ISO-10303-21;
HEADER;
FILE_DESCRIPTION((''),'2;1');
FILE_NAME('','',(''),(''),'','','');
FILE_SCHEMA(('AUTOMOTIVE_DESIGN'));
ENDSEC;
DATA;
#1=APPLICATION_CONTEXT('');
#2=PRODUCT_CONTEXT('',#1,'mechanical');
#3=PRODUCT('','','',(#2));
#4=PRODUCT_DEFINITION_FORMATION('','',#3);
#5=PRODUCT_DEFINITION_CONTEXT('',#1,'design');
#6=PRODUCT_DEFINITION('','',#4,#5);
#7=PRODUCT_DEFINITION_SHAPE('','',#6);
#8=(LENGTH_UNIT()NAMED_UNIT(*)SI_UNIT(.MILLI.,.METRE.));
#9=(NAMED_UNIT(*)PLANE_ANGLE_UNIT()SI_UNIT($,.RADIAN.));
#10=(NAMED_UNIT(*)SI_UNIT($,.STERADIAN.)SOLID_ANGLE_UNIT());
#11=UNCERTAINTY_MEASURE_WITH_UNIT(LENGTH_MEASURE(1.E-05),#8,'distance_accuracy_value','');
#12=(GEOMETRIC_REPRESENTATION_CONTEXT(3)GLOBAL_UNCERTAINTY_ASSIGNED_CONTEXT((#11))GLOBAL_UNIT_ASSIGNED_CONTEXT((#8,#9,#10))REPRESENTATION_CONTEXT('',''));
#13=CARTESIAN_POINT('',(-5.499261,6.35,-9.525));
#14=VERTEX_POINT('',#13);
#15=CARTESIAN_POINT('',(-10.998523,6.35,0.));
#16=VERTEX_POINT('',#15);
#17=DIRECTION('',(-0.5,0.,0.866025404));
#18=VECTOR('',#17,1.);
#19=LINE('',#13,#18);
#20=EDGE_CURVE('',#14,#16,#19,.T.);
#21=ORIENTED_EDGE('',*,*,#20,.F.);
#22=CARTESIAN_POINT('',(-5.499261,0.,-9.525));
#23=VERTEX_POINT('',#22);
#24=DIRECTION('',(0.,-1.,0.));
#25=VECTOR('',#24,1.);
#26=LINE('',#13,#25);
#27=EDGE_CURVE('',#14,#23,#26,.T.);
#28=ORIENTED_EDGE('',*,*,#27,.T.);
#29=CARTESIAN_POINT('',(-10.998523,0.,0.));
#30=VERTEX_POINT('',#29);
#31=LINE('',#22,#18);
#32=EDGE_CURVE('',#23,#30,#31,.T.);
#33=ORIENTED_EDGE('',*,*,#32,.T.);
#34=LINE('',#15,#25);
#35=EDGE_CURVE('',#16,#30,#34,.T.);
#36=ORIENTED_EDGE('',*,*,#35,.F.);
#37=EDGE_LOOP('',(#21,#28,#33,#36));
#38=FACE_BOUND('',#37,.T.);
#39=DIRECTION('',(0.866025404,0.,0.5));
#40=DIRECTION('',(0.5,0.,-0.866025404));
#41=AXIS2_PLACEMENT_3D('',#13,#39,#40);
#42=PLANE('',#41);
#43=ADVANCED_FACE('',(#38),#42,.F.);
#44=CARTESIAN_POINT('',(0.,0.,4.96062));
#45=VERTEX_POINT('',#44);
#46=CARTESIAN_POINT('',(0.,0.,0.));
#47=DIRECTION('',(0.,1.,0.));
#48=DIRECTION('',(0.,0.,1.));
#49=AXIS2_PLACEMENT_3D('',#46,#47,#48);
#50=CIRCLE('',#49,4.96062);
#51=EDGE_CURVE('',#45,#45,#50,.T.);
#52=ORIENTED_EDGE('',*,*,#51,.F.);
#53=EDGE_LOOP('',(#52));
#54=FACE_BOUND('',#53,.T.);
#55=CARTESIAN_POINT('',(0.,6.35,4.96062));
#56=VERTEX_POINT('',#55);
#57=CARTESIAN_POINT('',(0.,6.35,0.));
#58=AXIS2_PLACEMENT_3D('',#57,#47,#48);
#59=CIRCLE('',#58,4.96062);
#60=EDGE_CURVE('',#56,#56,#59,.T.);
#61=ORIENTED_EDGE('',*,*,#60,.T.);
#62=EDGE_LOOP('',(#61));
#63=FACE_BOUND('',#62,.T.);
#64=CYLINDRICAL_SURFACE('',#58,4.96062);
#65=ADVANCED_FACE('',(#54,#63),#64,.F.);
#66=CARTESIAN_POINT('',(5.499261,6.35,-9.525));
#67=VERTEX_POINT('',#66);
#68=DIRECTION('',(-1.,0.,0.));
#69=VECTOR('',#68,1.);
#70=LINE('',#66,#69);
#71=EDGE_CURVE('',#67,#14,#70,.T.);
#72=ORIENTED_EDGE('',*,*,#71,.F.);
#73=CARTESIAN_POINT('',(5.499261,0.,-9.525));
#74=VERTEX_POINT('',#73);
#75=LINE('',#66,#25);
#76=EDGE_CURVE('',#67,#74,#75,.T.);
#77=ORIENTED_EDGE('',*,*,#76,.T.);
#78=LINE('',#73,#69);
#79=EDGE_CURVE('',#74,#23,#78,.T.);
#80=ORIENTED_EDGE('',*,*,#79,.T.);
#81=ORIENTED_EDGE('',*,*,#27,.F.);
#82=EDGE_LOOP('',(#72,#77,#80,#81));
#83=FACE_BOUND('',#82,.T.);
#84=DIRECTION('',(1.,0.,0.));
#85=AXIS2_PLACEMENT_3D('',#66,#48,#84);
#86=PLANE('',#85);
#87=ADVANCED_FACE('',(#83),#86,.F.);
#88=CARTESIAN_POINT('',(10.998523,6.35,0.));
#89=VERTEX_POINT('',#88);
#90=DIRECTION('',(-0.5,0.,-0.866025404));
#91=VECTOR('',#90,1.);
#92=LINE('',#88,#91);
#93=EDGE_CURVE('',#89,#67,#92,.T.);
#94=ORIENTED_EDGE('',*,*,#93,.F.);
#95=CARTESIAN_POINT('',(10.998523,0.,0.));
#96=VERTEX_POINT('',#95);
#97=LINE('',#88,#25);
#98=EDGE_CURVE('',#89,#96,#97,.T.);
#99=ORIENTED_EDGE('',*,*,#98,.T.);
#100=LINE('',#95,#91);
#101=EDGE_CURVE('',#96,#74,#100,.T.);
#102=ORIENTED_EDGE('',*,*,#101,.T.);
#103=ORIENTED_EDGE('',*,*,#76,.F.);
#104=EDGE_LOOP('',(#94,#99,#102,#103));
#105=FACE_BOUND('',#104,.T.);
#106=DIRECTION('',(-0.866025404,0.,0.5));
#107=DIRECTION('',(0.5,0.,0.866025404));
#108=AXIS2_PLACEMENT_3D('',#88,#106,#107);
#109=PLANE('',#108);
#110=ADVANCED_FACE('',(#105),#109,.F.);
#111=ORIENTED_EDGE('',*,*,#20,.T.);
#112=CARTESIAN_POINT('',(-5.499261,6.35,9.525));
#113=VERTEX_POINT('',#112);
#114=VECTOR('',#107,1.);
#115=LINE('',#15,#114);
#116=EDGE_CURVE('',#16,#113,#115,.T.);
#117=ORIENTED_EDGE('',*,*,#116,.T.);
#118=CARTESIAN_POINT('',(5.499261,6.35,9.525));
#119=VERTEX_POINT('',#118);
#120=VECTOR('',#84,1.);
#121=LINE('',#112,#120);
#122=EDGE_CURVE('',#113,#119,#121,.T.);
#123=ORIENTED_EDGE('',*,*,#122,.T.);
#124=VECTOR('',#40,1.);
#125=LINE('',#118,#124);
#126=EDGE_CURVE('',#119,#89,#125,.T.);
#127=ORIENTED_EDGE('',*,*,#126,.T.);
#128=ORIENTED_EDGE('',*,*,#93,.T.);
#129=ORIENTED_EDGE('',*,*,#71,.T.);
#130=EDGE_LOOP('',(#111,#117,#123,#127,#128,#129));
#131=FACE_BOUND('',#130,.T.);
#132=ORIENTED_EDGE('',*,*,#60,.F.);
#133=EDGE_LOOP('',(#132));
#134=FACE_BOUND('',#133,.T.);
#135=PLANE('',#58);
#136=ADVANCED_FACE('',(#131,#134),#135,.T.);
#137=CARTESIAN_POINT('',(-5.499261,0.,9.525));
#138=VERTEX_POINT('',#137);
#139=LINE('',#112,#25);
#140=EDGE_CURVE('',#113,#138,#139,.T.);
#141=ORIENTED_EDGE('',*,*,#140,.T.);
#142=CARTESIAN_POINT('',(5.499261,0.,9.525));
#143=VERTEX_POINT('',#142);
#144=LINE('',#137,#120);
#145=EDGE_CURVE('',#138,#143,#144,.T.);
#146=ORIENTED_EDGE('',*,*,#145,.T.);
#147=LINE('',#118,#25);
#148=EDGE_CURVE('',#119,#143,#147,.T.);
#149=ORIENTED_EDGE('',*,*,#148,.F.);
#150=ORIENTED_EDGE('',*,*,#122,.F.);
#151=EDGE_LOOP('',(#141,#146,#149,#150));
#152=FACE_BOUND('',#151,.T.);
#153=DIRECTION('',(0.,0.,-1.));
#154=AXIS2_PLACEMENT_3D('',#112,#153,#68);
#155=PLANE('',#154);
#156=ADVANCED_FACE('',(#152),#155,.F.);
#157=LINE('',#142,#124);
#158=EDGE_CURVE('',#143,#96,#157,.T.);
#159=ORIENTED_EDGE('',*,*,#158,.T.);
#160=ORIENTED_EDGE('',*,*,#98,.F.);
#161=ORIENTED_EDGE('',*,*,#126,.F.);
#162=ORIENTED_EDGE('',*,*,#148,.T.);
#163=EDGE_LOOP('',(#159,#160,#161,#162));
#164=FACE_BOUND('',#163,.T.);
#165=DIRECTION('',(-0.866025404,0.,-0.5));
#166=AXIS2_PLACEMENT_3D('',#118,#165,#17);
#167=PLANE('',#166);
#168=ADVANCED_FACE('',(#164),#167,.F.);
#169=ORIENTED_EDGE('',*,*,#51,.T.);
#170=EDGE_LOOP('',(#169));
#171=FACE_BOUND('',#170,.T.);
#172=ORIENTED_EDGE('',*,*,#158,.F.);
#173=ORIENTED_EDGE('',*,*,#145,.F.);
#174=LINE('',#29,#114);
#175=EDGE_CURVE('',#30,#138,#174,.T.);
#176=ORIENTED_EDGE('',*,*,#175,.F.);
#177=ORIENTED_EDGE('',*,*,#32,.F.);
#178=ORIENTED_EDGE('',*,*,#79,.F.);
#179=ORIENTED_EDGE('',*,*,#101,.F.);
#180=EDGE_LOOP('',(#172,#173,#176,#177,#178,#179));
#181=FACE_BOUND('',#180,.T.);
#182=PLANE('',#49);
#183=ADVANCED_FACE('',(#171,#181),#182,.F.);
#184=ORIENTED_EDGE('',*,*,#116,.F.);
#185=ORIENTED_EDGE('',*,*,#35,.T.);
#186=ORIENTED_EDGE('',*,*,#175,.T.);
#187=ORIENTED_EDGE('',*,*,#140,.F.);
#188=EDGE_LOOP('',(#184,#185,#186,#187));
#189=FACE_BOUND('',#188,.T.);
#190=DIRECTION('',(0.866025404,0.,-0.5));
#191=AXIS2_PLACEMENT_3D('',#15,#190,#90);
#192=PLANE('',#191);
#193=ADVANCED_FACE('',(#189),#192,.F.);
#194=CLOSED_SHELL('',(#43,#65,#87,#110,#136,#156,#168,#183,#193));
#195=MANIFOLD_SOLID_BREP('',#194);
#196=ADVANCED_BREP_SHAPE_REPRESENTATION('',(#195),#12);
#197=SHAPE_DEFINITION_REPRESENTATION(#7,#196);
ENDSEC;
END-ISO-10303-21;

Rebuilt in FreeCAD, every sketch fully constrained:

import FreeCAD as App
import Part
import Sketcher
from FreeCAD import Vector
Q = App.Units.Quantity


def add_polygon(sketch, points):
    """Adds a closed chain of lines whose ends are joined by coincident constraints."""
    first, n = sketch.GeometryCount, len(points)
    for a, b in zip(points, points[1:] + points[:1]):
        sketch.addGeometry(Part.LineSegment(App.Vector(*a, 0), App.Vector(*b, 0)), False)
    for i in range(n):
        sketch.addConstraint(Sketcher.Constraint("Coincident", first + i, 2, first + (i + 1) % n, 1))

doc = App.newDocument("Part")
body = doc.addObject("PartDesign::Body", "Body")

# Sketch on XZ plane
sketch1 = body.newObject("Sketcher::SketchObject", "Sketch")
sketch1.AttachmentSupport = (doc.getObject("XZ_Plane"), [""])
sketch1.MapMode = "FlatFace"
add_polygon(sketch1, [(5, -10), (-5, -10), (-11, 0), (-5, 10), (5, 10), (11, 0)])  # lines 0-5
sketch1.addConstraint([
    Sketcher.Constraint("Horizontal", 0),
    Sketcher.Constraint("Horizontal", 3),
    Sketcher.Constraint("Symmetric", 0, 2, 3, 2, -1, 1),
    Sketcher.Constraint("Symmetric", 1, 2, 4, 2, -1, 1),
    Sketcher.Constraint("PointOnObject", 1, 2, -1),
    Sketcher.Constraint("Parallel", 2, 5),
    Sketcher.Constraint("Vertical", 0, 2, 2, 2),
    Sketcher.Constraint("Angle", 1, Q("120 deg")),
    Sketcher.Constraint("DistanceY", 0, 2, 2, 2, Q("0.75 in")),
    Sketcher.Constraint("DistanceX", 0, 2, 0, 1, 10.998523),
])
pad1 = body.newObject("PartDesign::Pad", "Pad")
pad1.Profile = sketch1
pad1.Length = Q("0.25 in")
pad1.Reversed = True

# Sketch on XZ plane
sketch2 = body.newObject("Sketcher::SketchObject", "Sketch001")
sketch2.AttachmentSupport = (doc.getObject("XZ_Plane"), [""])
sketch2.MapMode = "FlatFace"
sketch2.AttachmentOffset = App.Placement(Vector(0, 0, -0.25 * 25.4), App.Rotation())
sketch2.addGeometry(Part.Circle(Vector(0, 0, 0), Vector(0, 0, 1), 5), False)
sketch2.addConstraint([
    Sketcher.Constraint("Coincident", 0, 3, -1, 1),
    Sketcher.Constraint("Diameter", 0, Q("0.3906 in")),
])
doc.recompute()
hole = body.newObject("PartDesign::Hole", "Hole")
hole.Profile = sketch2
hole.ThreadType = "None"
hole.Diameter = Q("0.3906 in")
hole.DepthType = "ThroughAll"
hole.Reversed = True

doc.recompute()
